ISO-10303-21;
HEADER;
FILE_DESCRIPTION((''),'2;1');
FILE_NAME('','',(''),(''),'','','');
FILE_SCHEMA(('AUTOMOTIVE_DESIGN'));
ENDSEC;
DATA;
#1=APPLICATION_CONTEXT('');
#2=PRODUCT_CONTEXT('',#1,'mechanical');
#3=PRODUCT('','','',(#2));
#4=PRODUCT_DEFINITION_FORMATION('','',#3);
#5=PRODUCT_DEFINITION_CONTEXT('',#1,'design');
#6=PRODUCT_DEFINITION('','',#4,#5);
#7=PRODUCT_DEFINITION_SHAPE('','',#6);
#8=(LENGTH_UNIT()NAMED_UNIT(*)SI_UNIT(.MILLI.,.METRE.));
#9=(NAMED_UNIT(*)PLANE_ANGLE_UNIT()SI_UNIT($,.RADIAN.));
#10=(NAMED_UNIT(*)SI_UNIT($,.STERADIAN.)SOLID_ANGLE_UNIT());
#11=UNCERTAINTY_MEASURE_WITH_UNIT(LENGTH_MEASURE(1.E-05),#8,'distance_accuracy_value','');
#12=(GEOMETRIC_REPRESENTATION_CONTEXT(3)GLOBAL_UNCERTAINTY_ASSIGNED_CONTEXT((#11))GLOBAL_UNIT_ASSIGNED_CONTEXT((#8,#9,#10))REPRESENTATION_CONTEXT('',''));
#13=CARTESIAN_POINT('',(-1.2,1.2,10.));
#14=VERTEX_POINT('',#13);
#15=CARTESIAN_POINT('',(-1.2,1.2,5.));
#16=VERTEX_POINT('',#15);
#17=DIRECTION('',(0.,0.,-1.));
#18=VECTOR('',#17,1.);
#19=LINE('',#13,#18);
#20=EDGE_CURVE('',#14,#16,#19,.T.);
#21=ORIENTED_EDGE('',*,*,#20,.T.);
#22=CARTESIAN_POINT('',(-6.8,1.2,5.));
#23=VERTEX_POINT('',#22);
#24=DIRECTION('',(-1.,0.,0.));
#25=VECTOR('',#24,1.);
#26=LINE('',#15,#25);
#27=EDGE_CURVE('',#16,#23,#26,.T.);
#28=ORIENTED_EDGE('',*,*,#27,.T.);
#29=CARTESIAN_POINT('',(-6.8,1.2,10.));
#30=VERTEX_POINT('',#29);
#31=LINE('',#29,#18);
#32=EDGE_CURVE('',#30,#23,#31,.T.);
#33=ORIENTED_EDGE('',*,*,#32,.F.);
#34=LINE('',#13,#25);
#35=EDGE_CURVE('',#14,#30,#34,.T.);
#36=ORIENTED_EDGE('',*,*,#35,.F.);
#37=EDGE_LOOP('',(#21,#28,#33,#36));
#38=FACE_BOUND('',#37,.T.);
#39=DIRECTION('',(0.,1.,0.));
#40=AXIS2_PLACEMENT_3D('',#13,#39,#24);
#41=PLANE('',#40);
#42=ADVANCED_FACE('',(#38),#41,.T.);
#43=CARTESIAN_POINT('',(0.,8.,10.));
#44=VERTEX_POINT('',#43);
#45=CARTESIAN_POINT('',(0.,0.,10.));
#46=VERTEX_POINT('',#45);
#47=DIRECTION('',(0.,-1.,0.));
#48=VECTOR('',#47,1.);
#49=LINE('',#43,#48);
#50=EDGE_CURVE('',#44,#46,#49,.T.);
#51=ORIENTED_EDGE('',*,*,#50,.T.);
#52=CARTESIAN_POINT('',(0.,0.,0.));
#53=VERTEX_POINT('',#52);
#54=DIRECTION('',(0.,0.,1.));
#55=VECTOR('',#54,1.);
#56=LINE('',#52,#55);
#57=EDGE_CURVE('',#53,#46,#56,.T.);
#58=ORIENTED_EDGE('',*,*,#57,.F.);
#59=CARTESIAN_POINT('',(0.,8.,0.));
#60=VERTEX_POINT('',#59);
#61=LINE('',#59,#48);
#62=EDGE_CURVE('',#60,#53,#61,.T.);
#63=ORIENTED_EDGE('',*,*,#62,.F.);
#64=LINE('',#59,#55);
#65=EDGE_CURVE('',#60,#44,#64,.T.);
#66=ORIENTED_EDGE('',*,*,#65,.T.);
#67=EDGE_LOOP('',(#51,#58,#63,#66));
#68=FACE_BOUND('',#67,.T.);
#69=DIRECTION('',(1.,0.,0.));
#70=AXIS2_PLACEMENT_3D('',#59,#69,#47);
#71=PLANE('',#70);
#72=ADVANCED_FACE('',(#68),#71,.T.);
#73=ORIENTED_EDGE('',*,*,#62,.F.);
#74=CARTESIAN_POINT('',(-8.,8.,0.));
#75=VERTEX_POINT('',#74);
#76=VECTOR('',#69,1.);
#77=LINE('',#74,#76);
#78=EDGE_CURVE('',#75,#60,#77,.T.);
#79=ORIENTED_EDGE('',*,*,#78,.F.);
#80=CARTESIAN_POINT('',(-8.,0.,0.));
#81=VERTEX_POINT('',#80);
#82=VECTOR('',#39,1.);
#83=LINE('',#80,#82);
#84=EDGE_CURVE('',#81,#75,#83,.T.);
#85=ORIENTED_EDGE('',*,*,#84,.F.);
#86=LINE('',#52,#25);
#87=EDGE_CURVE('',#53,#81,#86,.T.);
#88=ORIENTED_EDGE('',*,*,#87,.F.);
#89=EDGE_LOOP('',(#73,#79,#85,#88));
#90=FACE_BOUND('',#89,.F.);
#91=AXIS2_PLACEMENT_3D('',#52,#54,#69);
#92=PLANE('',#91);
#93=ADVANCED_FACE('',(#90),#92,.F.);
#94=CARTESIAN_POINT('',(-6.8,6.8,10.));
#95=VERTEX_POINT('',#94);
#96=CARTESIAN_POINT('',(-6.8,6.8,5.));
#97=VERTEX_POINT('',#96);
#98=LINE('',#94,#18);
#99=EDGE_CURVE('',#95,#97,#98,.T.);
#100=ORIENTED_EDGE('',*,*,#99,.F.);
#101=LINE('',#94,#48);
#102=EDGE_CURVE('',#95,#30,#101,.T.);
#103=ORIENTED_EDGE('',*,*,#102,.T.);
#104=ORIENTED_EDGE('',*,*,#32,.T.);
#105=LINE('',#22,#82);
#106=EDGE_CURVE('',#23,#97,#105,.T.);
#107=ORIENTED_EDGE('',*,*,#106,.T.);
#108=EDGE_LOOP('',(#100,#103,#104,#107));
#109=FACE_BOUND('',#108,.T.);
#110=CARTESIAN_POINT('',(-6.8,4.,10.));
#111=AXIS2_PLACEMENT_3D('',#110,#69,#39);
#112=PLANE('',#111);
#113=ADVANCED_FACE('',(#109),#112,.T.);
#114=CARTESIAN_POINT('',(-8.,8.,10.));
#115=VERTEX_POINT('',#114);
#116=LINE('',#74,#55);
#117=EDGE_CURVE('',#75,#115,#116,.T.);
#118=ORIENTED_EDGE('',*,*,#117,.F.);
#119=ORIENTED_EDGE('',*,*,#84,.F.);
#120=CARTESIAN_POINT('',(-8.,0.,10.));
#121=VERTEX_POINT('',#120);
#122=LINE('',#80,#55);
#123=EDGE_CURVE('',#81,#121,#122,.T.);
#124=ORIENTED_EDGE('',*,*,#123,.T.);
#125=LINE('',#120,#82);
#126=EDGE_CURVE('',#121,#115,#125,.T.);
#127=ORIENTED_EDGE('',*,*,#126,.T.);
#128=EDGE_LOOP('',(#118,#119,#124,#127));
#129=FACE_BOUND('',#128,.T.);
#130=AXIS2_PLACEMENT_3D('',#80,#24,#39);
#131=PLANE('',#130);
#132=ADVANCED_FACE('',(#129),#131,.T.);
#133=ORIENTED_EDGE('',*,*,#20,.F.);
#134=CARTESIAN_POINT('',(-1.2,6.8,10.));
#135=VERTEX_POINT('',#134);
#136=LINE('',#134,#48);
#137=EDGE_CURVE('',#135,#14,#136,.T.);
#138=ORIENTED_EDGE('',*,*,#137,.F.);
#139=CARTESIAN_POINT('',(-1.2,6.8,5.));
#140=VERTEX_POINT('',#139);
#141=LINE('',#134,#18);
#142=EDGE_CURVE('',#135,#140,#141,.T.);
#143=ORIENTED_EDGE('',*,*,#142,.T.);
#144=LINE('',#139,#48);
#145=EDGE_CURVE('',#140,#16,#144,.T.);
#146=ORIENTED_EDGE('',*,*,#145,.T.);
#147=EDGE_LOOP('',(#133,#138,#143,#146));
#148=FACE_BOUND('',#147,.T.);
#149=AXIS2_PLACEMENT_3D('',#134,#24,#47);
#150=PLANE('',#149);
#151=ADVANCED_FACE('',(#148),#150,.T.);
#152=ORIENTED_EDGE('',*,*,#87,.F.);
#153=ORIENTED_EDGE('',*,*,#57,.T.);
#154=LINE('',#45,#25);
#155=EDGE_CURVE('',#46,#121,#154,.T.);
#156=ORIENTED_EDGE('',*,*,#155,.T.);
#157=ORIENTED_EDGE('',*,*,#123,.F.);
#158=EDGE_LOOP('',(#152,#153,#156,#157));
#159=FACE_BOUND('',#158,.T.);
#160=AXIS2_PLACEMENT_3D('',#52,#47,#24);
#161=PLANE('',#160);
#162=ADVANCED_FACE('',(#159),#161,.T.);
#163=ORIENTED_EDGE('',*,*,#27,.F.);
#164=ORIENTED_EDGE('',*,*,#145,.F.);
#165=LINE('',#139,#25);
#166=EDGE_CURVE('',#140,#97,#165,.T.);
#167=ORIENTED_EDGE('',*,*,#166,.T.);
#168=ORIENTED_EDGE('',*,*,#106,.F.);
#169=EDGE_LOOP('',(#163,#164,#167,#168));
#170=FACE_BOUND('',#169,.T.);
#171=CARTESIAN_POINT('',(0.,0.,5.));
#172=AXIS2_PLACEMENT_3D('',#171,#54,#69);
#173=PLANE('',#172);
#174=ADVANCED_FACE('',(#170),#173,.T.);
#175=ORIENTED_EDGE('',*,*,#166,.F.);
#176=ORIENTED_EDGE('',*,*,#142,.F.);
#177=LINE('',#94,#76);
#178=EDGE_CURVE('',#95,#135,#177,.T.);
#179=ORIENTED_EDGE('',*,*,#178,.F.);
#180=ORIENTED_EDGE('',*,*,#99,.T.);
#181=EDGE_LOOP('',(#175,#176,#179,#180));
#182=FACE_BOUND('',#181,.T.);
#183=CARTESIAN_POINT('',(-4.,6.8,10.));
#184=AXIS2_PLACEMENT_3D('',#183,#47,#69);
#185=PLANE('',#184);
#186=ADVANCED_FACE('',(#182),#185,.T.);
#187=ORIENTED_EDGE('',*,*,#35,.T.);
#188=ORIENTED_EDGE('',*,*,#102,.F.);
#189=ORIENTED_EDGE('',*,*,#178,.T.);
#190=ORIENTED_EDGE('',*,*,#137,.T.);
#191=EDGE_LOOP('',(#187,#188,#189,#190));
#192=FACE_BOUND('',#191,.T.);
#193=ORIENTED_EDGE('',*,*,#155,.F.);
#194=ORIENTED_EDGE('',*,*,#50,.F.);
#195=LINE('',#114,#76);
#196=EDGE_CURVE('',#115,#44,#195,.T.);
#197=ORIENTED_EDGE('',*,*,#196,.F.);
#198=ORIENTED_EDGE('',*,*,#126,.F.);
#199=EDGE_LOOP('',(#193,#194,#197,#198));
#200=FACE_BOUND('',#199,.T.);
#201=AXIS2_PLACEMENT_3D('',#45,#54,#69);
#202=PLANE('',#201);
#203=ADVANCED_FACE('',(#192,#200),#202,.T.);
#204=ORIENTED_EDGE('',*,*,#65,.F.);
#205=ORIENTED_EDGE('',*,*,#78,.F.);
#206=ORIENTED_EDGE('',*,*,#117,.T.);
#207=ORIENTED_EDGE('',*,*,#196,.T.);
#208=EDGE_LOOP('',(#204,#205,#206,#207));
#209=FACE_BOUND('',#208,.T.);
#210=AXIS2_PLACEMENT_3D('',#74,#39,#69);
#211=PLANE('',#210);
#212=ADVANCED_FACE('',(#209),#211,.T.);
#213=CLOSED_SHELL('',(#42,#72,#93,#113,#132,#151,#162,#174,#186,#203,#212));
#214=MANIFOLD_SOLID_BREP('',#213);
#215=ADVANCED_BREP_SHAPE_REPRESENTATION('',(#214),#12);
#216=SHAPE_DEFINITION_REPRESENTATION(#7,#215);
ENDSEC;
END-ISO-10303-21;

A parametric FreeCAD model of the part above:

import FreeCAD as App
import Part
import Sketcher
Q = App.Units.Quantity

doc = App.newDocument("Part")
body = doc.addObject("PartDesign::Body", "Body")

# Sketch on XY plane
sketch1 = doc.addObject("Sketcher::SketchObject", "Sketch")
body.addObject(sketch1)
sketch1.AttachmentSupport = (doc.XY_Plane, [""])
sketch1.MapMode = "FlatFace"
sketch1.addGeometry([
    Part.LineSegment(App.Vector(-8, 0, 0), App.Vector(0, 0, 0)),
    Part.LineSegment(App.Vector(0, 0, 0), App.Vector(0, 8, 0)),
    Part.LineSegment(App.Vector(0, 8, 0), App.Vector(-8, 8, 0)),
    Part.LineSegment(App.Vector(-8, 8, 0), App.Vector(-8, 0, 0)),
], False)
sketch1.addConstraint([
    Sketcher.Constraint("Coincident", 0, 2, 1, 1),
    Sketcher.Constraint("Coincident", 1, 2, 2, 1),
    Sketcher.Constraint("Coincident", 2, 2, 3, 1),
    Sketcher.Constraint("Coincident", 3, 2, 0, 1),
    Sketcher.Constraint("Horizontal", 0),
    Sketcher.Constraint("Vertical", 1),
    Sketcher.Constraint("Horizontal", 2),
    Sketcher.Constraint("Vertical", 3),
    Sketcher.Constraint("Coincident", 0, 2, -1, 1),
    Sketcher.Constraint("Equal", 2, 1),
    Sketcher.Constraint("DistanceX", 0, 1, 0, 2, Q("8 mm")),
])
pad1 = doc.addObject("PartDesign::Pad", "Pad")
body.addObject(pad1)
pad1.Profile = sketch1
pad1.Length = 10

# Sketch on XY plane
sketch2 = doc.addObject("Sketcher::SketchObject", "Sketch001")
body.addObject(sketch2)
sketch2.AttachmentSupport = (doc.XY_Plane, [""])
sketch2.MapMode = "FlatFace"
sketch2.AttachmentOffset = App.Placement(App.Vector(0, 0, 10), App.Rotation())
sketch2.addGeometry([
    Part.LineSegment(App.Vector(-1, 7, 0), App.Vector(-7, 7, 0)),
    Part.LineSegment(App.Vector(-7, 7, 0), App.Vector(-7, 1, 0)),
    Part.LineSegment(App.Vector(-7, 1, 0), App.Vector(-1, 1, 0)),
    Part.LineSegment(App.Vector(-1, 1, 0), App.Vector(-1, 7, 0)),
], False)
sketch2.addConstraint([
    Sketcher.Constraint("Coincident", 0, 2, 1, 1),
    Sketcher.Constraint("Coincident", 1, 2, 2, 1),
    Sketcher.Constraint("Coincident", 2, 2, 3, 1),
    Sketcher.Constraint("Coincident", 3, 2, 0, 1),
    Sketcher.Constraint("Horizontal", 0),
    Sketcher.Constraint("Vertical", 1),
    Sketcher.Constraint("Horizontal", 2),
    Sketcher.Constraint("Vertical", 3),
    Sketcher.Constraint("Equal", 2, 1),
    Sketcher.Constraint("DistanceX", 0, 2, 0, 1, Q("5.6 mm")),
    Sketcher.Constraint("DistanceX", 0, 2, -1, 1, Q("6.8 mm")),
    Sketcher.Constraint("DistanceY", -1, 1, 0, 2, Q("6.8 mm")),
])
pocket1 = doc.addObject("PartDesign::Pocket", "Pocket")
body.addObject(pocket1)
pocket1.Profile = sketch2
pocket1.Length = 5

doc.recompute()
